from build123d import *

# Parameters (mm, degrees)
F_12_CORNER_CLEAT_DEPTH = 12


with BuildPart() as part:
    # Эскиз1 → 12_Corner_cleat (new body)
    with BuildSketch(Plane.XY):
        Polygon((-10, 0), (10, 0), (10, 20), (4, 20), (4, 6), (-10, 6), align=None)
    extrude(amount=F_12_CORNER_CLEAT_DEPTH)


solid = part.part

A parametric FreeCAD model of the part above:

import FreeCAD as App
import Part
import Sketcher
from FreeCAD import Vector


def add_polygon(sketch, points):
    """Adds a closed chain of lines whose ends are joined by coincident constraints."""
    first, n = sketch.GeometryCount, len(points)
    for a, b in zip(points, points[1:] + points[:1]):
        sketch.addGeometry(Part.LineSegment(App.Vector(*a, 0), App.Vector(*b, 0)), False)
    for i in range(n):
        sketch.addConstraint(Sketcher.Constraint("Coincident", first + i, 2, first + (i + 1) % n, 1))

doc = App.newDocument("Part")
body = doc.addObject("PartDesign::Body", "Body")

# Sketch on XY plane
sketch1 = body.newObject("Sketcher::SketchObject", "Sketch")
sketch1.AttachmentSupport = (doc.getObject("XY_Plane"), [""])
sketch1.MapMode = "FlatFace"
add_polygon(sketch1, [(-10, 0), (10, 0), (10, 20), (4, 20), (4, 6), (-10, 6)])  # lines 0-5
sketch1.addConstraint([
    Sketcher.Constraint("Horizontal", 0),
    Sketcher.Constraint("Vertical", 1),
    Sketcher.Constraint("Horizontal", 2),
    Sketcher.Constraint("Vertical", 3),
    Sketcher.Constraint("Horizontal", 4),
    Sketcher.Constraint("Vertical", 5),
    Sketcher.Constraint("Symmetric", 0, 2, 5, 2, -1, 1),
    Sketcher.Constraint("Equal", 0, 1),
    Sketcher.Constraint("Equal", 4, 3),
    Sketcher.Constraint("DistanceX", 0, 1, 0, 2, 20.0),
    Sketcher.Constraint("DistanceX", 2, 2, 2, 1, 6.0),
])
pad1 = body.newObject("PartDesign::Pad", "Pad")
pad1.Profile = sketch1
pad1.Length = 12

doc.recompute()
